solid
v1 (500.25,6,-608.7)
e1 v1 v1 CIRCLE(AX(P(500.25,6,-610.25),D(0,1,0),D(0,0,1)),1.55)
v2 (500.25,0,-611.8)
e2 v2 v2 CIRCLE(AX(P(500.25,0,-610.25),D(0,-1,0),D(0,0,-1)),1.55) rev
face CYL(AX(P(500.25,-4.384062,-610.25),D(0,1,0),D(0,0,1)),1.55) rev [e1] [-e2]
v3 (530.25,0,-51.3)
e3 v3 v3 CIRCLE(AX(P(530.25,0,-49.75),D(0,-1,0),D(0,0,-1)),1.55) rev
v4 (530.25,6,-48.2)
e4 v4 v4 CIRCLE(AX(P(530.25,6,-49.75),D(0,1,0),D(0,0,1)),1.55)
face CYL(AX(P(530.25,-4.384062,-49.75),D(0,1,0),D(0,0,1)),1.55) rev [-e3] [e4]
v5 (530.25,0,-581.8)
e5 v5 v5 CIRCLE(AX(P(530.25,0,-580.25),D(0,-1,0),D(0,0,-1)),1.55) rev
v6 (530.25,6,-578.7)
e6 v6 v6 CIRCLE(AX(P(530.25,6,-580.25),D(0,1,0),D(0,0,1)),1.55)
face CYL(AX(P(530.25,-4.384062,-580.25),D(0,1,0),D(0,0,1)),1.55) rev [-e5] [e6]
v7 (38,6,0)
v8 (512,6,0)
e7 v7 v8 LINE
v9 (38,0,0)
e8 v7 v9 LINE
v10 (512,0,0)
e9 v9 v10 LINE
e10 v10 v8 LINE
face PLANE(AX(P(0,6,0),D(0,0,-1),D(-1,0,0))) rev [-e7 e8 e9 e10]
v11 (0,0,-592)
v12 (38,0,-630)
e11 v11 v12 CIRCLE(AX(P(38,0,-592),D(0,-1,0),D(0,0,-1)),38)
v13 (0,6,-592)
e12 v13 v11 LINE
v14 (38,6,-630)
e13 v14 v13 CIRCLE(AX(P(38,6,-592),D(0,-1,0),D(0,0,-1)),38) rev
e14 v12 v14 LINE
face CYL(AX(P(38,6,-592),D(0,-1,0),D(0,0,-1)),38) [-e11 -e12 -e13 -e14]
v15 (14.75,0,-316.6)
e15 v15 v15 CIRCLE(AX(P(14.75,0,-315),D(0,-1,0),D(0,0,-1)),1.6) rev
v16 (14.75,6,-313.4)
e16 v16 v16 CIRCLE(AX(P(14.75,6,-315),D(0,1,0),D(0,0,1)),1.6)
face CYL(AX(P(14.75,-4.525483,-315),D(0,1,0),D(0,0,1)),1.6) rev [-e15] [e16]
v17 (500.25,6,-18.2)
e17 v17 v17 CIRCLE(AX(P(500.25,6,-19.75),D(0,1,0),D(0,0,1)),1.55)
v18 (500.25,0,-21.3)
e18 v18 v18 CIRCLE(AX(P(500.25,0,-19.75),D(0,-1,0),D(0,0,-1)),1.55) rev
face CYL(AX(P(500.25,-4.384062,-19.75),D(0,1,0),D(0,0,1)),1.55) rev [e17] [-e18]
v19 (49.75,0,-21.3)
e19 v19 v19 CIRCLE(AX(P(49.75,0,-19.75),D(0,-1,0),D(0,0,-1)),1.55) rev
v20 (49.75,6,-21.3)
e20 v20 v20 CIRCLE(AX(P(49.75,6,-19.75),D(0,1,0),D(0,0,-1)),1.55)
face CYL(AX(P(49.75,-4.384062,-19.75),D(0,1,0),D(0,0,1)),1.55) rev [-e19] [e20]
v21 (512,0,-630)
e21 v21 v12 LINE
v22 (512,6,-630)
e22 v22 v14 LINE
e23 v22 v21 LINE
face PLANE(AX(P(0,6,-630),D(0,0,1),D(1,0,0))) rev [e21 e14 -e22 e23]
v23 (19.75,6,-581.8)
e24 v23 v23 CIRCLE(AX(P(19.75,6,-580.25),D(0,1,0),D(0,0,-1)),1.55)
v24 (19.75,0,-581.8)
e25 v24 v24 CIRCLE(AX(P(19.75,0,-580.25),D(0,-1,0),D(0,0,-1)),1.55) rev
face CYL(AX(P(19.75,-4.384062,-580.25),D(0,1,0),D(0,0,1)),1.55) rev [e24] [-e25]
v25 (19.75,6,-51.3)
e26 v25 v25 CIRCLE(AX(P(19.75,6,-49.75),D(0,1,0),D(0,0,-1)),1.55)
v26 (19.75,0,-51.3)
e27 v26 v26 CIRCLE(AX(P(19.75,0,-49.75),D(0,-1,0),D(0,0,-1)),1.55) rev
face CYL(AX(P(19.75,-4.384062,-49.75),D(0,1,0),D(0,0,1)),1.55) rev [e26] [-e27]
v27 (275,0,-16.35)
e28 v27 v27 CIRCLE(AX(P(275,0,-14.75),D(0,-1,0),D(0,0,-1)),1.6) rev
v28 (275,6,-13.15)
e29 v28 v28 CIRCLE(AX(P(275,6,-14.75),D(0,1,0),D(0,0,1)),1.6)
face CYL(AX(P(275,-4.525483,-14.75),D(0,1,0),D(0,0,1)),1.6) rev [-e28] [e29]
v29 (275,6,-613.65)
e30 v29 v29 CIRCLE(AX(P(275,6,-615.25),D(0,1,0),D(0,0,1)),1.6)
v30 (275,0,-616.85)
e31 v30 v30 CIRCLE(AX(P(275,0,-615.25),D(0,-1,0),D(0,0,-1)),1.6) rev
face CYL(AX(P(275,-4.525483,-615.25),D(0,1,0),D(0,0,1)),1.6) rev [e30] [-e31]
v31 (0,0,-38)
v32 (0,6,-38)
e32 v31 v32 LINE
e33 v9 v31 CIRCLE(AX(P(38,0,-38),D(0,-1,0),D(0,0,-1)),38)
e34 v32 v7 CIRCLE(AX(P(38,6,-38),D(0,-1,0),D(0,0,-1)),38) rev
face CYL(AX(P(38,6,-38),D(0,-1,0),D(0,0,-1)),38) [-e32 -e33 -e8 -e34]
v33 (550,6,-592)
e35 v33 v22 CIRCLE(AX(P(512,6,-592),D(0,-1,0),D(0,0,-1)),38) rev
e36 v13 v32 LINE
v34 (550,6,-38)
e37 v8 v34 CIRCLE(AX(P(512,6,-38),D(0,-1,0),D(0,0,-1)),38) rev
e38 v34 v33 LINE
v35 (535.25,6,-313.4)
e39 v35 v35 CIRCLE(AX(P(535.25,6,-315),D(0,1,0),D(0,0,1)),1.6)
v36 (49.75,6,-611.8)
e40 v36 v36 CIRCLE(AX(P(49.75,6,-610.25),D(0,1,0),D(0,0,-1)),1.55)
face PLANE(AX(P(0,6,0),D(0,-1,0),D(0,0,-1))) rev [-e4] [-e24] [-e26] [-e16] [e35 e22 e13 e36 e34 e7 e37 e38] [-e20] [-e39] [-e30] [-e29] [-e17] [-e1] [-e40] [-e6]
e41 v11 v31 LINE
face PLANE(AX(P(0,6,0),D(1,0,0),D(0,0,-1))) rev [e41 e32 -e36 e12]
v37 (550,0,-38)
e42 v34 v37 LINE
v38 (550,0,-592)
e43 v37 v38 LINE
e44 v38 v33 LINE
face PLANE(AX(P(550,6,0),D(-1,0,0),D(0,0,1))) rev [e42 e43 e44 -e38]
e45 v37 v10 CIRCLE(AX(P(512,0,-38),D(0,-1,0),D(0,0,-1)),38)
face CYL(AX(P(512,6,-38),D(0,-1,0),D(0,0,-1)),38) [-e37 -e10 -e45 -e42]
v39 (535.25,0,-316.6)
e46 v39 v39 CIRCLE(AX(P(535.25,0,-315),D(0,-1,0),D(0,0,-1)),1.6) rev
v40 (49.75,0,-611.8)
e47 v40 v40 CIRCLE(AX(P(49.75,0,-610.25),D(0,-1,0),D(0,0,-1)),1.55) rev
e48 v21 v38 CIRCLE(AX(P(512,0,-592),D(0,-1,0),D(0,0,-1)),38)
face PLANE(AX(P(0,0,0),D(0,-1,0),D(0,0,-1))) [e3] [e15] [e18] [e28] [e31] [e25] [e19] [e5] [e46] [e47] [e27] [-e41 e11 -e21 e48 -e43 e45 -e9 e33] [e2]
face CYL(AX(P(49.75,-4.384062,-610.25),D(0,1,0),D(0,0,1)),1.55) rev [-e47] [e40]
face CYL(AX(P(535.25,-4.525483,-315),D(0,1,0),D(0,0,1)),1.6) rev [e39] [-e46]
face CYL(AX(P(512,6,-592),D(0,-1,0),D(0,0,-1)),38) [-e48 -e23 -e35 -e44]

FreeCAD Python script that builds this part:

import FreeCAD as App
import Part
import Sketcher


def edges_at(feature, points):
    """Names of the edges that pass closest to the given points."""
    edges = feature.Shape.Edges
    near = lambda p: min(range(len(edges)), key=lambda i: edges[i].distToShape(Part.Vertex(*p))[0])
    return sorted({f"Edge{near(p) + 1}" for p in points})


def add_polygon(sketch, points):
    """Adds a closed chain of lines whose ends are joined by coincident constraints."""
    first, n = sketch.GeometryCount, len(points)
    for a, b in zip(points, points[1:] + points[:1]):
        sketch.addGeometry(Part.LineSegment(App.Vector(*a, 0), App.Vector(*b, 0)), False)
    for i in range(n):
        sketch.addConstraint(Sketcher.Constraint("Coincident", first + i, 2, first + (i + 1) % n, 1))

doc = App.newDocument("Part")
body = doc.addObject("PartDesign::Body", "Body")

sketch1 = body.newObject("Sketcher::SketchObject", "Sketch")
sketch1.AttachmentSupport = (doc.getObject("XZ_Plane"), [""])
sketch1.MapMode = "FlatFace"
add_polygon(sketch1, [(0, -630), (0, 0), (550, 0), (550, -630)])
sketch1.addConstraint([
    Sketcher.Constraint("Vertical", 0),
    Sketcher.Constraint("Horizontal", 1),
    Sketcher.Constraint("Vertical", 2),
    Sketcher.Constraint("Horizontal", 3),
    Sketcher.Constraint("Coincident", 0, 2, -1, 1),
    Sketcher.Constraint("DistanceX", 1, 1, 1, 2, 550.0),
    Sketcher.Constraint("DistanceY", 0, 1, 0, 2, 630.0),
])
pad1 = body.newObject("PartDesign::Pad", "Pad")
pad1.Profile = sketch1
pad1.Length = 6
pad1.Reversed = True

sketch2 = body.newObject("Sketcher::SketchObject", "Sketch001")
sketch2.AttachmentSupport = (doc.getObject("XZ_Plane"), [""])
sketch2.MapMode = "FlatFace"
sketch2.AttachmentOffset = App.Placement(App.Vector(0, 0, -6), App.Rotation())
sketch2.addGeometry([
    Part.Circle(App.Vector(500.25, -610.25, 0), App.Vector(0, 0, 1), 1.55),
    Part.Circle(App.Vector(530.25, -580.25, 0), App.Vector(0, 0, 1), 1.55),
    Part.Circle(App.Vector(530.25, -49.75, 0), App.Vector(0, 0, 1), 1.55),
    Part.Circle(App.Vector(19.75, -580.25, 0), App.Vector(0, 0, 1), 1.55),
    Part.Circle(App.Vector(19.75, -49.75, 0), App.Vector(0, 0, 1), 1.55),
    Part.Circle(App.Vector(500.25, -19.75, 0), App.Vector(0, 0, 1), 1.55),
    Part.Circle(App.Vector(49.75, -610.25, 0), App.Vector(0, 0, 1), 1.55),
    Part.Circle(App.Vector(49.75, -19.75, 0), App.Vector(0, 0, 1), 1.55),
], False)
sketch2.addConstraint([
    Sketcher.Constraint("Equal", 0, 1),
    Sketcher.Constraint("Equal", 1, 2),
    Sketcher.Constraint("Equal", 2, 3),
    Sketcher.Constraint("Equal", 3, 4),
    Sketcher.Constraint("Equal", 4, 5),
    Sketcher.Constraint("Equal", 5, 6),
    Sketcher.Constraint("Equal", 6, 7),
    Sketcher.Constraint("Horizontal", 1, 3, 3, 3),
    Sketcher.Constraint("Horizontal", 2, 3, 4, 3),
    Sketcher.Constraint("Horizontal", 0, 3, 6, 3),
    Sketcher.Constraint("Horizontal", 5, 3, 7, 3),
    Sketcher.Constraint("Vertical", 1, 3, 2, 3),
    Sketcher.Constraint("Vertical", 3, 3, 4, 3),
    Sketcher.Constraint("Vertical", 0, 3, 5, 3),
    Sketcher.Constraint("Vertical", 6, 3, 7, 3),
    Sketcher.Constraint("Diameter", 0, 3.1),
    Sketcher.Constraint("DistanceX", 0, 3, 1, 3, 30.0),
    Sketcher.Constraint("DistanceY", 0, 3, 1, 3, 30.0),
    Sketcher.Constraint("DistanceY", 2, 3, 5, 3, 30.0),
    Sketcher.Constraint("DistanceX", 3, 3, 6, 3, 30.0),
    Sketcher.Constraint("DistanceY", 1, 3, 2, 3, 530.5),
    Sketcher.Constraint("DistanceX", 3, 3, 0, 3, 480.5),
    Sketcher.Constraint("DistanceX", -1, 1, 0, 3, 500.25),
    Sketcher.Constraint("DistanceY", 0, 3, -1, 1, 610.25),
])
pocket1 = body.newObject("PartDesign::Pocket", "Pocket")
pocket1.Profile = sketch2
pocket1.Length = 6
pocket1.Reversed = True
doc.recompute()

fillet = body.newObject("PartDesign::Fillet", "Fillet")
fillet.Base = (pocket1, edges_at(pocket1, [
    (0, 3, -630),
    (550, 3, -630),
    (550, 3, 0),
    (0, 3, 0),
]))
fillet.Radius = 38

sketch3 = body.newObject("Sketcher::SketchObject", "Sketch002")
sketch3.AttachmentSupport = (doc.getObject("XZ_Plane"), [""])
sketch3.MapMode = "FlatFace"
sketch3.AttachmentOffset = App.Placement(App.Vector(0, 0, -6), App.Rotation())
sketch3.addGeometry([
    Part.Circle(App.Vector(275, -615.25, 0), App.Vector(0, 0, 1), 1.6),
    Part.Circle(App.Vector(14.75, -315, 0), App.Vector(0, 0, 1), 1.6),
    Part.Circle(App.Vector(535.25, -315, 0), App.Vector(0, 0, 1), 1.6),
    Part.Circle(App.Vector(275, -14.75, 0), App.Vector(0, 0, 1), 1.6),
], False)
sketch3.addConstraint([
    Sketcher.Constraint("Equal", 0, 1),
    Sketcher.Constraint("Equal", 1, 2),
    Sketcher.Constraint("Equal", 2, 3),
    Sketcher.Constraint("Horizontal", 1, 3, 2, 3),
    Sketcher.Constraint("Vertical", 0, 3, 3, 3),
    Sketcher.Constraint("Diameter", 0, 3.2),
    Sketcher.Constraint("DistanceX", -1, 1, 0, 3, 275.0),
    Sketcher.Constraint("DistanceY", 1, 3, -1, 1, 315.0),
    Sketcher.Constraint("DistanceX", 1, 3, 2, 3, 520.5),
    Sketcher.Constraint("DistanceY", 0, 3, 3, 3, 600.5),
    Sketcher.Constraint("DistanceY", 0, 3, -1, 1, 615.25),
    Sketcher.Constraint("DistanceX", -1, 1, 1, 3, 14.75),
])
pocket2 = body.newObject("PartDesign::Pocket", "Pocket001")
pocket2.Profile = sketch3
pocket2.Length = 6
pocket2.Reversed = True

doc.recompute()
